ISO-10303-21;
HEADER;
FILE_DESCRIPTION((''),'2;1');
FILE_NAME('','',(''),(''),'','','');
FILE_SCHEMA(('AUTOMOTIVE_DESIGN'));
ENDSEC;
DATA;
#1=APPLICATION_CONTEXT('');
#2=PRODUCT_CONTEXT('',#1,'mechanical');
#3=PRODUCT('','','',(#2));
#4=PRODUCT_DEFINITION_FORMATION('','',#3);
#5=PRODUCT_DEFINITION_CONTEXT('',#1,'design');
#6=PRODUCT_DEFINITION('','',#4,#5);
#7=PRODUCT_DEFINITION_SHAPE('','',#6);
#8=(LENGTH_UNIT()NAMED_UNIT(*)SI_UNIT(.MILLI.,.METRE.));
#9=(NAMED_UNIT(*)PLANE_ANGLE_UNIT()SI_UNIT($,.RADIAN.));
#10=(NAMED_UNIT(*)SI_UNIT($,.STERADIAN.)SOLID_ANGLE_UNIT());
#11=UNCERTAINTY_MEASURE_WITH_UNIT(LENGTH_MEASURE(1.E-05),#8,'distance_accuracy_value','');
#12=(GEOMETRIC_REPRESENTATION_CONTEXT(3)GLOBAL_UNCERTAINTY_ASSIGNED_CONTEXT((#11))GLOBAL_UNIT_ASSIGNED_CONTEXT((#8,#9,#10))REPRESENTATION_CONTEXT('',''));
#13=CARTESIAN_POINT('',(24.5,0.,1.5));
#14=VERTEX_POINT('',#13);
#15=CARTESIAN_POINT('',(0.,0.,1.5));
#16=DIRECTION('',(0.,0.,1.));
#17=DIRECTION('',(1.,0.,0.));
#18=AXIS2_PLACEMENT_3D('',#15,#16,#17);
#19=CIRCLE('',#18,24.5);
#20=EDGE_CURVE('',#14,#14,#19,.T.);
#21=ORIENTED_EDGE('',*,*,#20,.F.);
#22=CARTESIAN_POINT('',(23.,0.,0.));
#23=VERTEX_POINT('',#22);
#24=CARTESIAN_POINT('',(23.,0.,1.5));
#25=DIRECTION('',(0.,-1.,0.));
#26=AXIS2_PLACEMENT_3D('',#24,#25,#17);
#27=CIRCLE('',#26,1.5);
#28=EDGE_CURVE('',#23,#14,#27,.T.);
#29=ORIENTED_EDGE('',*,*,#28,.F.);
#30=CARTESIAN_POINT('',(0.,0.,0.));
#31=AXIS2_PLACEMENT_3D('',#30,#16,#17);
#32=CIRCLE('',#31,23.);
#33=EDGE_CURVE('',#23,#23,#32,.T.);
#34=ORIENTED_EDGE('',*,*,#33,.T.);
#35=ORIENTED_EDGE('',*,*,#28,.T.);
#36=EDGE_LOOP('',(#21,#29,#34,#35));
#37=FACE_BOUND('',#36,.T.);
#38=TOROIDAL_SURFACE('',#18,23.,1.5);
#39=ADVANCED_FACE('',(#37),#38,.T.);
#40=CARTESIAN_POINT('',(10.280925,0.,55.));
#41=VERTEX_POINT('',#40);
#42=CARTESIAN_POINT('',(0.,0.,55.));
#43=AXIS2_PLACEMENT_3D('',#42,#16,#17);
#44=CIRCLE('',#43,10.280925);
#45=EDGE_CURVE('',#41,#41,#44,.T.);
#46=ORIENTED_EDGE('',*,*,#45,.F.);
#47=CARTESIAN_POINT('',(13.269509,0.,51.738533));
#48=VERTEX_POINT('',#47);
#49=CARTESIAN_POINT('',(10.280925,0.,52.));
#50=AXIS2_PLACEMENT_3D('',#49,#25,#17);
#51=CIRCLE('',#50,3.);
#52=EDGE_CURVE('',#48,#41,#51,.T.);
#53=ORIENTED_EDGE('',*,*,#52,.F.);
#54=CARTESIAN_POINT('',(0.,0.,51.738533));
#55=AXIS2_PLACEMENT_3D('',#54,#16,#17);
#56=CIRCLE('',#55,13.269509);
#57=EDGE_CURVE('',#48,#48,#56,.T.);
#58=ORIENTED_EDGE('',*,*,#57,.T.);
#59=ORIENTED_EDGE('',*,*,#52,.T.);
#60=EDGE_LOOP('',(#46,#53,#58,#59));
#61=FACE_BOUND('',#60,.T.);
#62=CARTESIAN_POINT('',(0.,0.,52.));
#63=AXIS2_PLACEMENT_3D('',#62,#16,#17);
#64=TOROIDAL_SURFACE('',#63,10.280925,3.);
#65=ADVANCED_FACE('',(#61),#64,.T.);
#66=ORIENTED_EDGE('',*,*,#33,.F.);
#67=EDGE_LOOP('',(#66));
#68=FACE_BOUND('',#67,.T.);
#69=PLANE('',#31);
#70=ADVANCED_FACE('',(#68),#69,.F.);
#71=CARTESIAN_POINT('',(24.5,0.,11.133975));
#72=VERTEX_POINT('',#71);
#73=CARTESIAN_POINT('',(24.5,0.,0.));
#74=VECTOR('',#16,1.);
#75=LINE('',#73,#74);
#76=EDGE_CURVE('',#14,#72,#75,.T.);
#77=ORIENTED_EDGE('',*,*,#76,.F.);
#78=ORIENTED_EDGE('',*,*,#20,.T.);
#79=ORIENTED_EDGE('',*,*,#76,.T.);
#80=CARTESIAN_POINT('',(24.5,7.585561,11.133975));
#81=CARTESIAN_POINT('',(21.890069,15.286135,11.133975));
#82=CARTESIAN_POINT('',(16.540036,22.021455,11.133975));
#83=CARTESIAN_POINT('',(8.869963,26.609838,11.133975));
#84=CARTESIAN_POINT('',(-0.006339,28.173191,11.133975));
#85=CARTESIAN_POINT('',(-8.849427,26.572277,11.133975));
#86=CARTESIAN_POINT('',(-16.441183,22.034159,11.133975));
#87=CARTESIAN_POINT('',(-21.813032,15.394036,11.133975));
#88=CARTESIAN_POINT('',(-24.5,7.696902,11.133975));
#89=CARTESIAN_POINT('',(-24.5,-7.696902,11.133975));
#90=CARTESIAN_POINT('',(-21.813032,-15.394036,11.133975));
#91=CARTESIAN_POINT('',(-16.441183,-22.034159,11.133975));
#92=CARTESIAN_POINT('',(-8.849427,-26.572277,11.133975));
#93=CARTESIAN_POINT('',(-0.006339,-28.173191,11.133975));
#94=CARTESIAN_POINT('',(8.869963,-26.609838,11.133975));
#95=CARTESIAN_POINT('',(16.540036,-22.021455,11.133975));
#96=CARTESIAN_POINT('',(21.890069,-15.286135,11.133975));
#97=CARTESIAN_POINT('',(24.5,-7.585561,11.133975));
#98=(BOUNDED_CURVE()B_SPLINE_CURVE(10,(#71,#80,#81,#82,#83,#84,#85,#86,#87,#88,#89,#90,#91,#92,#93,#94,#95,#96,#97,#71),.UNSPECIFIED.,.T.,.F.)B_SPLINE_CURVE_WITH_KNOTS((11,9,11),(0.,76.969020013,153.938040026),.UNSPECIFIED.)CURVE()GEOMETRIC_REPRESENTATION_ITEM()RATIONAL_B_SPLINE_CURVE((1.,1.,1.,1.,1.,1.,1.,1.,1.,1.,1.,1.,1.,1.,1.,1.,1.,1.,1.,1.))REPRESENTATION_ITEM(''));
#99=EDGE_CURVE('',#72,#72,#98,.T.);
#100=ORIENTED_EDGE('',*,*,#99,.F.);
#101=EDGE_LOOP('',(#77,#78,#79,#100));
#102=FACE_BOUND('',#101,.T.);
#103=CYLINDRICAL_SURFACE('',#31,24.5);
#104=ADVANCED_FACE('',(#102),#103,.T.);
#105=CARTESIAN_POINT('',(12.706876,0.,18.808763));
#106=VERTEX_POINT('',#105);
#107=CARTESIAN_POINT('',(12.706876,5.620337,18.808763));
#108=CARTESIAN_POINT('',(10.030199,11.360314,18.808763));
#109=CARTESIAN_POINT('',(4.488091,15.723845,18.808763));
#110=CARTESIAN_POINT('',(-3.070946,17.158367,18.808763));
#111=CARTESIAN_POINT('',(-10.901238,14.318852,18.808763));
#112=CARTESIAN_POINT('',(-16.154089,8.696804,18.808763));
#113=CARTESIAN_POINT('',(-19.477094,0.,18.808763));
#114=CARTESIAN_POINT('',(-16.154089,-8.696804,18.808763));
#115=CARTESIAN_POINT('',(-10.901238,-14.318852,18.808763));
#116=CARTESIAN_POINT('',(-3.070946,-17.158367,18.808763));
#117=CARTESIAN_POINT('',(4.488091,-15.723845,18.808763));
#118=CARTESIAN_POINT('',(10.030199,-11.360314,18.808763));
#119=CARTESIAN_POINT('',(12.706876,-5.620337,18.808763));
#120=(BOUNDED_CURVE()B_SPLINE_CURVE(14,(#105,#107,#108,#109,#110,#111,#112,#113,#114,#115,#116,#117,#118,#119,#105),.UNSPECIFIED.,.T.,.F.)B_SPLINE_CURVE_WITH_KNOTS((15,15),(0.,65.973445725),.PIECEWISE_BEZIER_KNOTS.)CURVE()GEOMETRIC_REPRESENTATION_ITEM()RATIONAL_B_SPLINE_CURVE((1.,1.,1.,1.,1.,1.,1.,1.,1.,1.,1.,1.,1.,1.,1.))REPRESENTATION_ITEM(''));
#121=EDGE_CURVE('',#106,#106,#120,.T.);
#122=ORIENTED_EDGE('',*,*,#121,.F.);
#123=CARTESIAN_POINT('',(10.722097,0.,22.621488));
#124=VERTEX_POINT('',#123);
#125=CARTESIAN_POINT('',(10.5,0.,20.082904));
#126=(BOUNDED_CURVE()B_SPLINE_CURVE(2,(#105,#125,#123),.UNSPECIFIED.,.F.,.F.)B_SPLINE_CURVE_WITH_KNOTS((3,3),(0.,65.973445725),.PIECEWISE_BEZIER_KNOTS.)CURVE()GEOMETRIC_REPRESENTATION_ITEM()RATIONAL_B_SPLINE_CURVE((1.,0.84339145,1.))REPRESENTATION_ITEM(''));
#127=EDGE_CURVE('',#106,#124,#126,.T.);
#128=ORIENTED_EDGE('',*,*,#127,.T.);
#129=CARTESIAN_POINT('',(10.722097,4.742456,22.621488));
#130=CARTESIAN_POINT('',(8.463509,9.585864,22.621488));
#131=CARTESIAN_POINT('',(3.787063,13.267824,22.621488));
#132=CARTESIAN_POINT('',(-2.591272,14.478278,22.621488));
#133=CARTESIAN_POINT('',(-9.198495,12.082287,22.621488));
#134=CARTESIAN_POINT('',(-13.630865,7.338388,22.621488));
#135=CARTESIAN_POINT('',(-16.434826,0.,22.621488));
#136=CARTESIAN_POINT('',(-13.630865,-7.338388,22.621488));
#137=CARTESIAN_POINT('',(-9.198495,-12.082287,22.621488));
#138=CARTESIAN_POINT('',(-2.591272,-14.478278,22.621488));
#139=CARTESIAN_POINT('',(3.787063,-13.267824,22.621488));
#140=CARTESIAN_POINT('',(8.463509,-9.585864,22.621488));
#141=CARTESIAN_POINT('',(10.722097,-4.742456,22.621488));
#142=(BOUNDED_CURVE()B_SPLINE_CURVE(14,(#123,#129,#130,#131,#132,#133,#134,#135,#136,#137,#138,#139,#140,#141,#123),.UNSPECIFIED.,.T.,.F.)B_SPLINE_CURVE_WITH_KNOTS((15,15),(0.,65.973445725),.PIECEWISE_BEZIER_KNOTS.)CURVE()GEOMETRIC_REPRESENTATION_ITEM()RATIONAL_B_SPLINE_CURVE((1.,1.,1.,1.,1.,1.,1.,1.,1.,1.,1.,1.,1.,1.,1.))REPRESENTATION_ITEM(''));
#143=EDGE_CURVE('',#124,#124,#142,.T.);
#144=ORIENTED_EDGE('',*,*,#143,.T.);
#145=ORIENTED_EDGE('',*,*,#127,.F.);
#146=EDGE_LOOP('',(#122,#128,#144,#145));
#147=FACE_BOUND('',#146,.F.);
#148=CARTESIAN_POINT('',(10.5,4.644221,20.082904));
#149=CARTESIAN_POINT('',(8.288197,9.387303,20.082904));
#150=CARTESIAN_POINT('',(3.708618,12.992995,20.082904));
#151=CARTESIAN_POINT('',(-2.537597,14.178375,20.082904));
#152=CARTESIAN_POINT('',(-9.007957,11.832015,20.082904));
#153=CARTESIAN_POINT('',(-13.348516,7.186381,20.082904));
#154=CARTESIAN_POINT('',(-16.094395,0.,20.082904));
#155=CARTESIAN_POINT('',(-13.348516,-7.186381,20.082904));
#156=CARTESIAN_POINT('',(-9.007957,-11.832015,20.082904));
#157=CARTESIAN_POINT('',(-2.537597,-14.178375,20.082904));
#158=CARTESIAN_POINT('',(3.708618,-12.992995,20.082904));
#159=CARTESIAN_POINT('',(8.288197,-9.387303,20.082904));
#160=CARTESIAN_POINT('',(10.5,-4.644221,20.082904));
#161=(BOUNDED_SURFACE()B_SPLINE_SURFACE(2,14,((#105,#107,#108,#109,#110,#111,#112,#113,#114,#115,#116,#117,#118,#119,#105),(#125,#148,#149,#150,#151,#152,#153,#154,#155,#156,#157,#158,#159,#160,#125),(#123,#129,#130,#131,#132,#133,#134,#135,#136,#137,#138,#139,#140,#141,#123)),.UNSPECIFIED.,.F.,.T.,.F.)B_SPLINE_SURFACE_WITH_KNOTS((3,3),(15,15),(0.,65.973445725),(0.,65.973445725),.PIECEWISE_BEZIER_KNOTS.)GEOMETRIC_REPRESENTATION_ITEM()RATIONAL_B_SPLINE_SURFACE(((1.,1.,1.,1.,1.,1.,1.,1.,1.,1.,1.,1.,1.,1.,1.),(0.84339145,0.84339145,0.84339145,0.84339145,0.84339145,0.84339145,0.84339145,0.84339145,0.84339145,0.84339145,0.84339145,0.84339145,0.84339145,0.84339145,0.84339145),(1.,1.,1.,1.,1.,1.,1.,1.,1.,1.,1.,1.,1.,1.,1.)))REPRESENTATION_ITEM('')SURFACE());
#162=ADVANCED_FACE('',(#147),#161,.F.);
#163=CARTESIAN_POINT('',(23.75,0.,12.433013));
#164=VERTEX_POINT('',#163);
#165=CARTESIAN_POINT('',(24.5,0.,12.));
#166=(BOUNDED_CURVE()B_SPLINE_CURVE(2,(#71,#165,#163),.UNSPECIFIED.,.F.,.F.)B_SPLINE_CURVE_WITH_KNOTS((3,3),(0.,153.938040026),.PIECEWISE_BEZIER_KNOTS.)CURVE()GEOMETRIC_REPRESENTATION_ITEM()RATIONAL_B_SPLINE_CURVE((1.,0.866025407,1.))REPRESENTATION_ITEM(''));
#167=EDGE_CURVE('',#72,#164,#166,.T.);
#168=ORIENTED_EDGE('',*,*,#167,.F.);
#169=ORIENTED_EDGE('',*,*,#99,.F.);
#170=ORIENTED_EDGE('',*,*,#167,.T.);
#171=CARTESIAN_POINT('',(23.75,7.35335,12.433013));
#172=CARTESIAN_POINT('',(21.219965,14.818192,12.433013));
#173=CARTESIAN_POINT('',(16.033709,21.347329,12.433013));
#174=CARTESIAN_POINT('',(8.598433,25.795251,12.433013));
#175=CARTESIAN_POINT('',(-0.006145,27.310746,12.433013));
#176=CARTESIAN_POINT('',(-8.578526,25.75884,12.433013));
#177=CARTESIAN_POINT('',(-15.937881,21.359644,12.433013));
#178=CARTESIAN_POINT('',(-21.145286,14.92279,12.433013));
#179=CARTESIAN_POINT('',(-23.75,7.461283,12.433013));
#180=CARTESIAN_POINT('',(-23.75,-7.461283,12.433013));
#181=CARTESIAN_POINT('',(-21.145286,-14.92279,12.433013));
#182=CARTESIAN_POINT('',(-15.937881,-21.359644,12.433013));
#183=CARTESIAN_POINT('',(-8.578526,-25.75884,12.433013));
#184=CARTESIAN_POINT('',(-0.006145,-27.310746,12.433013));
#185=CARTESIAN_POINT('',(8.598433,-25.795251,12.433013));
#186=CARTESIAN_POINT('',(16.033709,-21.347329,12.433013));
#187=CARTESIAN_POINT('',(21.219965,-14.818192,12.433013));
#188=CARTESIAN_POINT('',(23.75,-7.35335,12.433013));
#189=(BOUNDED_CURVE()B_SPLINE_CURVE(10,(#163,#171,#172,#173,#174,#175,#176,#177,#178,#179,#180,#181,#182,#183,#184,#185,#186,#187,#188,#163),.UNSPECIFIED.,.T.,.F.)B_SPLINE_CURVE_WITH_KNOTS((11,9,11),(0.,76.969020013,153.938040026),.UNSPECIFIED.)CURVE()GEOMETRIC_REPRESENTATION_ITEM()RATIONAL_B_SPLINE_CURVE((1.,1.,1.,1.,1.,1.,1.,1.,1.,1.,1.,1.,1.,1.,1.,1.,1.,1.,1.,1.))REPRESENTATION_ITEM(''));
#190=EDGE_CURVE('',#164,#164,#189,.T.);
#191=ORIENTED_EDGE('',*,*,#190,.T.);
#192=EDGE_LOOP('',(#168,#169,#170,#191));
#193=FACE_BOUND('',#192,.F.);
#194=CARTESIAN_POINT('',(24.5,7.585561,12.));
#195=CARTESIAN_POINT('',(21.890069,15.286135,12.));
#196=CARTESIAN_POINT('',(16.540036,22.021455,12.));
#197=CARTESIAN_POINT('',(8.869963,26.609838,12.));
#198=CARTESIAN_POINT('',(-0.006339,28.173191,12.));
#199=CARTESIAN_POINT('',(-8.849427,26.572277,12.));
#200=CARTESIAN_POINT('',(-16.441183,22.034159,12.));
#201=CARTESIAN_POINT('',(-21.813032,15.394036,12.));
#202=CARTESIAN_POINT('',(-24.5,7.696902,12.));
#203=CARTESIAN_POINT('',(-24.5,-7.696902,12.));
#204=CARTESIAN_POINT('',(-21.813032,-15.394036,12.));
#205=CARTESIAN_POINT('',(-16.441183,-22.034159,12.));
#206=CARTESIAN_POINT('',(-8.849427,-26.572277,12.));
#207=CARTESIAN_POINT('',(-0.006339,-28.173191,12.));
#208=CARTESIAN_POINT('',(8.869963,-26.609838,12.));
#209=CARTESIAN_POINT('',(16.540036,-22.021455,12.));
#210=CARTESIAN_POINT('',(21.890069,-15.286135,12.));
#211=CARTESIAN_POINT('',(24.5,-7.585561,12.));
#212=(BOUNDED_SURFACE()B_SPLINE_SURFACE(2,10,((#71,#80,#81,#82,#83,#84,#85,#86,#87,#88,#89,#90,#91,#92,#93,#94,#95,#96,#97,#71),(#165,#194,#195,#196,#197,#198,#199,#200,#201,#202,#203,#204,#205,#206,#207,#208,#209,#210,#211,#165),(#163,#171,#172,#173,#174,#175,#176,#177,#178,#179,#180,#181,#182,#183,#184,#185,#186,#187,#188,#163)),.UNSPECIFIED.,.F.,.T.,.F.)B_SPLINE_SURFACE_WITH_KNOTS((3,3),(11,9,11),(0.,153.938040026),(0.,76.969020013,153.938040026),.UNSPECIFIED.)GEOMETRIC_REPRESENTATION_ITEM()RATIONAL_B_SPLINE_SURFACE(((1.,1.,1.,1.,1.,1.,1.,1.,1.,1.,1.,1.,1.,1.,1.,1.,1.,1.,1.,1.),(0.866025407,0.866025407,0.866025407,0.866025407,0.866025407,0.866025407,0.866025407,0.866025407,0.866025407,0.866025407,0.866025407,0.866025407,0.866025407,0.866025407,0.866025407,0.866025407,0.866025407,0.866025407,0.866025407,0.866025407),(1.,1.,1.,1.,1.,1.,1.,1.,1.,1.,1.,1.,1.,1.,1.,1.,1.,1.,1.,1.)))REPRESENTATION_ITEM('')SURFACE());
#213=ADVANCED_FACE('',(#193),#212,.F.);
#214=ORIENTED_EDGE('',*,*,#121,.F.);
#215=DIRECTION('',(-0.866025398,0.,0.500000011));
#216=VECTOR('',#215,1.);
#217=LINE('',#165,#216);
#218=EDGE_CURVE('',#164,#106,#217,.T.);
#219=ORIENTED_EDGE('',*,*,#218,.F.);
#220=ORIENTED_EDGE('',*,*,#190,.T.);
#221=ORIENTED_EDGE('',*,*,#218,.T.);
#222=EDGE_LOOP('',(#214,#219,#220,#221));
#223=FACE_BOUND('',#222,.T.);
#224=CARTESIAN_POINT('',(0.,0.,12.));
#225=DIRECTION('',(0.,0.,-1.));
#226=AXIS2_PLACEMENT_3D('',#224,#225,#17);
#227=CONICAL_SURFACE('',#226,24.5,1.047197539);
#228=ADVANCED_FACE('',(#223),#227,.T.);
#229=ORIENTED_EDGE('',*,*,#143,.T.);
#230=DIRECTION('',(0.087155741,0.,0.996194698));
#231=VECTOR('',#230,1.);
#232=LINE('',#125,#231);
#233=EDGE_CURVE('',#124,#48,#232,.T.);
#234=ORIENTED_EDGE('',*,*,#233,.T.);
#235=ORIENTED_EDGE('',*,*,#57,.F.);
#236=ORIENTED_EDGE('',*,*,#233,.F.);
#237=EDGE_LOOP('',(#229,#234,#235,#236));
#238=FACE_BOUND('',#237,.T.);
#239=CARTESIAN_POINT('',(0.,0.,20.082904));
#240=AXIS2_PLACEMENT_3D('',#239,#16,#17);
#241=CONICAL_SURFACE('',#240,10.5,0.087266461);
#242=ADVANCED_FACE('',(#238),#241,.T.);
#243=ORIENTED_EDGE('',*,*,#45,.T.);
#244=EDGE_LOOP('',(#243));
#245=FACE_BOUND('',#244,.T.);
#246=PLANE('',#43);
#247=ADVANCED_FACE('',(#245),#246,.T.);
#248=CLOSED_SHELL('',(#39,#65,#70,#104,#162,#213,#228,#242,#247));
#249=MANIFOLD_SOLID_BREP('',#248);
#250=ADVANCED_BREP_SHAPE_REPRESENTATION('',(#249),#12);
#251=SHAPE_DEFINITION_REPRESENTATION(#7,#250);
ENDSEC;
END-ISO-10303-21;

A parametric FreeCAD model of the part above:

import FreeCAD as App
import Part
import Sketcher

V = App.Vector
Q = App.Units.Quantity


def edges_at(feature, points):
    """Names of the edges that pass closest to the given points."""
    edges = feature.Shape.Edges
    near = lambda p: min(range(len(edges)), key=lambda i: edges[i].distToShape(Part.Vertex(*p))[0])
    return sorted({f"Edge{near(p) + 1}" for p in points})


def add_polygon(sketch, points):
    """Adds a closed chain of lines whose ends are joined by coincident constraints."""
    first, n = sketch.GeometryCount, len(points)
    for a, b in zip(points, points[1:] + points[:1]):
        sketch.addGeometry(Part.LineSegment(App.Vector(*a, 0), App.Vector(*b, 0)), False)
    for i in range(n):
        sketch.addConstraint(Sketcher.Constraint("Coincident", first + i, 2, first + (i + 1) % n, 1))

doc = App.newDocument("Part")
body = doc.addObject("PartDesign::Body", "Body")

# Sketch on XZ plane
sketch1 = doc.addObject("Sketcher::SketchObject", "Sketch")
body.addObject(sketch1)
sketch1.AttachmentSupport = (doc.XZ_Plane, [""])
sketch1.MapMode = "FlatFace"
add_polygon(sketch1, [(0, 55), (0, 0), (24, 0), (24, 12), (10, 20), (14, 55)])  # lines 0-5
sketch1.addConstraint([
    Sketcher.Constraint("Vertical", 0),
    Sketcher.Constraint("Horizontal", 1),
    Sketcher.Constraint("Vertical", 2),
    Sketcher.Constraint("Horizontal", 5),
    Sketcher.Constraint("Coincident", 0, 2, -1, 1),
    Sketcher.Constraint("DistanceY", 0, 2, 0, 1, Q("55 mm")),
    Sketcher.Constraint("DistanceY", 2, 1, 2, 2, Q("12 mm")),
    Sketcher.Constraint("Angle", 3, Q("149.999999 deg")),
    Sketcher.Constraint("Angle", 4, Q("85 deg")),
    Sketcher.Constraint("DistanceX", 1, 1, 1, 2, Q("24.5 mm")),
    Sketcher.Constraint("DistanceX", 3, 2, 2, 2, Q("14 mm")),
])
revolution = doc.addObject("PartDesign::Revolution", "Revolution")
body.addObject(revolution)
revolution.Profile = sketch1
revolution.ReferenceAxis = (sketch1, ["V_Axis"])
revolution.Angle = 360
doc.recompute()

fillet = doc.addObject("PartDesign::Fillet", "Fillet")
body.addObject(fillet)
fillet.Base = (revolution, edges_at(revolution, [(-24.5, 0, 0), (-24.5, 0, 12)]))
fillet.Radius = 1.5
doc.recompute()

fillet2 = doc.addObject("PartDesign::Fillet", "Fillet001")
body.addObject(fillet2)
fillet2.Base = (fillet, edges_at(fillet, [(-10.5, 0, 20.083)]))
fillet2.Radius = 4
doc.recompute()

fillet3 = doc.addObject("PartDesign::Fillet", "Fillet002")
body.addObject(fillet3)
fillet3.Base = (fillet2, edges_at(fillet2, [(-13.555, 0, 55)]))
fillet3.Radius = 3

doc.recompute()
